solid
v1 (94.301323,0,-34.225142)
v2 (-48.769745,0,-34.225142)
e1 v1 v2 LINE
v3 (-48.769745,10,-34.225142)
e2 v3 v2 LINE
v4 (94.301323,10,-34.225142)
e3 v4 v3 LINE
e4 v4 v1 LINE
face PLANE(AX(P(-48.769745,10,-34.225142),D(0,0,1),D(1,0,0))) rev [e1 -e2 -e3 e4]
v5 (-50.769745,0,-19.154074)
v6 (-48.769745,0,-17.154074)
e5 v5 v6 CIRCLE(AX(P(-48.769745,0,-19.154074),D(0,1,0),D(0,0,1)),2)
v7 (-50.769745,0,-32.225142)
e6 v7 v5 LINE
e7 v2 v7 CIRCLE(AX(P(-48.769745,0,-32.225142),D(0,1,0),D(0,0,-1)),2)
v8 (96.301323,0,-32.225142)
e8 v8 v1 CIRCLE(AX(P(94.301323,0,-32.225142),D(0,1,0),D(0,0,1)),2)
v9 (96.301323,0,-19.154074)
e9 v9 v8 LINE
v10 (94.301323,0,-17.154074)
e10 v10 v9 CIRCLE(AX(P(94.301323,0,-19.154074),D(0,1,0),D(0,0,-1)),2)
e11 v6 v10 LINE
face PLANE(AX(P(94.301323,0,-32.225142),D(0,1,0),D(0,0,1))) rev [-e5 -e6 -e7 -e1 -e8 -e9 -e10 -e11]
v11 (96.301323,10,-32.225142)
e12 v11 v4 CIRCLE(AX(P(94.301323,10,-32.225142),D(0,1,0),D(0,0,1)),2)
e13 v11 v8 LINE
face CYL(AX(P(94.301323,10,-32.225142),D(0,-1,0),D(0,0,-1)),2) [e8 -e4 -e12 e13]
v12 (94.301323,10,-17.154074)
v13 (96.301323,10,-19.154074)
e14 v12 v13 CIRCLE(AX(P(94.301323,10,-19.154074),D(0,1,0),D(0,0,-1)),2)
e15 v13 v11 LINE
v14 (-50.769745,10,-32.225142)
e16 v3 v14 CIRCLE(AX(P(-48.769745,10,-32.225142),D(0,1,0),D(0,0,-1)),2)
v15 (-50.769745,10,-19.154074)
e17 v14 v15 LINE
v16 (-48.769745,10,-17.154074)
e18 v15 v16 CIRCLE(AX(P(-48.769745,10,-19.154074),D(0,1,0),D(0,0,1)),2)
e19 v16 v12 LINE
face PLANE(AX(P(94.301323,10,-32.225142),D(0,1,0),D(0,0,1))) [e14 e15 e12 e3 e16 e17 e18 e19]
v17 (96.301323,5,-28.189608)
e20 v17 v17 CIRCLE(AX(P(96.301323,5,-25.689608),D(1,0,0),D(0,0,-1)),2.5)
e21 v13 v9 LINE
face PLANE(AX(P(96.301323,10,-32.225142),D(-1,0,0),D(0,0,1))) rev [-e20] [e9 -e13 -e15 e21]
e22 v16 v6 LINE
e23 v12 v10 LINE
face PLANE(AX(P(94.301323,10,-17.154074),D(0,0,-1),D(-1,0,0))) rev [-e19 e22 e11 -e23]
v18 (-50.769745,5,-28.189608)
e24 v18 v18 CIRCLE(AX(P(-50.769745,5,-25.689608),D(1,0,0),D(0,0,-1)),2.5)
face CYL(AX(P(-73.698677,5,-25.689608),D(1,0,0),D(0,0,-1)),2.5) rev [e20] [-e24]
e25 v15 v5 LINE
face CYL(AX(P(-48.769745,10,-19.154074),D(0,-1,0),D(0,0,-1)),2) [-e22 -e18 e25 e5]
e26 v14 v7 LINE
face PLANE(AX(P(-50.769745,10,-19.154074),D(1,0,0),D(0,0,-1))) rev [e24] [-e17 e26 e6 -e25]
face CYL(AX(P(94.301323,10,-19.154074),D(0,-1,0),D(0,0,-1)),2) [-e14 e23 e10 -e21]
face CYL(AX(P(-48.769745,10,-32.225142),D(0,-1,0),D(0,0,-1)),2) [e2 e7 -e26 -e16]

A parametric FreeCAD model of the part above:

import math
import FreeCAD as App
import Part
import Sketcher

V = App.Vector

doc = App.newDocument("Part")
body = doc.addObject("PartDesign::Body", "Body")

# Sketch on XZ plane
sketch1 = body.newObject("Sketcher::SketchObject", "Sketch")
sketch1.AttachmentSupport = (doc.getObject("XZ_Plane"), [""])
sketch1.MapMode = "FlatFace"
sketch1.addGeometry([
    Part.LineSegment(V(94.3, -34.2, 0), V(-48.8, -34.2, 0)),  # 0
    Part.ArcOfCircle(Part.Circle(V(-48.8, -32.2, 0), V(0, 0, 1), 2), math.radians(180), math.radians(270)),  # 1
    Part.LineSegment(V(-50.8, -32.2, 0), V(-50.8, -19.2, 0)),  # 2
    Part.ArcOfCircle(Part.Circle(V(-48.8, -19.2, 0), V(0, 0, 1), 2), math.radians(90), math.radians(180)),  # 3
    Part.LineSegment(V(-48.8, -17.2, 0), V(94.3, -17.2, 0)),  # 4
    Part.ArcOfCircle(Part.Circle(V(94.3, -19.2, 0), V(0, 0, 1), 2), math.radians(0), math.radians(90)),  # 5
    Part.LineSegment(V(96.3, -19.2, 0), V(96.3, -32.2, 0)),  # 6
    Part.ArcOfCircle(Part.Circle(V(94.3, -32.2, 0), V(0, 0, 1), 2), math.radians(-90), math.radians(0)),  # 7
], False)
sketch1.addConstraint([
    Sketcher.Constraint("Tangent", 0, 2, 1, 2),
    Sketcher.Constraint("Tangent", 1, 1, 2, 1),
    Sketcher.Constraint("Tangent", 2, 2, 3, 2),
    Sketcher.Constraint("Tangent", 3, 1, 4, 1),
    Sketcher.Constraint("Tangent", 4, 2, 5, 2),
    Sketcher.Constraint("Tangent", 5, 1, 6, 1),
    Sketcher.Constraint("Tangent", 6, 2, 7, 2),
    Sketcher.Constraint("Tangent", 7, 1, 0, 1),
    Sketcher.Constraint("Horizontal", 0),
    Sketcher.Constraint("Vertical", 2),
    Sketcher.Constraint("Horizontal", 4),
    Sketcher.Constraint("Vertical", 6),
    Sketcher.Constraint("Equal", 1, 3),
    Sketcher.Constraint("Equal", 3, 5),
    Sketcher.Constraint("Equal", 5, 7),
    Sketcher.Constraint("Radius", 1, 2.0),
    Sketcher.Constraint("DistanceX", 0, 2, 0, 1, 143.071068),
    Sketcher.Constraint("DistanceY", 2, 1, 2, 2, 13.071068),
    Sketcher.Constraint("DistanceY", 1, 3, -1, 1, 32.225142),
    Sketcher.Constraint("DistanceX", 1, 3, -1, 1, 48.769745),
])
pad1 = body.newObject("PartDesign::Pad", "Pad")
pad1.Profile = sketch1
pad1.Length = 10
pad1.Reversed = True

# Sketch on YZ plane
sketch2 = body.newObject("Sketcher::SketchObject", "Sketch001")
sketch2.AttachmentSupport = (doc.getObject("YZ_Plane"), [""])
sketch2.MapMode = "FlatFace"
sketch2.AttachmentOffset = App.Placement(V(0, 0, 96.301323), App.Rotation())
sketch2.addGeometry(Part.Circle(V(5, -25.7, 0), V(0, 0, 1), 2.5), False)
sketch2.addConstraint([
    Sketcher.Constraint("Diameter", 0, 5.0),
    Sketcher.Constraint("DistanceX", -1, 1, 0, 3, 5.0),
    Sketcher.Constraint("DistanceY", 0, 3, -1, 1, 25.689608),
])
pocket1 = body.newObject("PartDesign::Pocket", "Pocket")
pocket1.Profile = sketch2
pocket1.Length = 170

doc.recompute()
